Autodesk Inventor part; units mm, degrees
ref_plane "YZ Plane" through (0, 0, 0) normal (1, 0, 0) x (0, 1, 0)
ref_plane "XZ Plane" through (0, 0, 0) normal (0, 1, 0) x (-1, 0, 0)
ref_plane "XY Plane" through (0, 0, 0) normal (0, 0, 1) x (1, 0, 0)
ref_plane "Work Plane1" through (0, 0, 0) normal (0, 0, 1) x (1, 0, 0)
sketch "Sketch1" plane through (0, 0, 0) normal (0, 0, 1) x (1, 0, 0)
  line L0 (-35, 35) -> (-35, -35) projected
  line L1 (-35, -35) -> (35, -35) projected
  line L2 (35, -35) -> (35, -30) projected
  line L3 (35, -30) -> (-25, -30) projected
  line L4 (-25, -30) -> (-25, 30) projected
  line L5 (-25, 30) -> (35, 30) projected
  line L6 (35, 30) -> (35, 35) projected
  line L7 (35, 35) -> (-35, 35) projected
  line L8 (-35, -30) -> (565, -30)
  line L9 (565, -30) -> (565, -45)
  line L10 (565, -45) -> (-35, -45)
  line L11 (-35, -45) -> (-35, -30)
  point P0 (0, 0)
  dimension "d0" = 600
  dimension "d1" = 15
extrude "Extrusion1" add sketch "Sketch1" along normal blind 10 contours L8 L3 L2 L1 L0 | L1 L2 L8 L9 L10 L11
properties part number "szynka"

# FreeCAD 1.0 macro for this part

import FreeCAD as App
import Part
import Sketcher

V = App.Vector
Q = App.Units.Quantity

doc = App.newDocument("Part")
params = doc.addObject("Spreadsheet::Sheet", "Params")
for row, (alias, value) in enumerate([
    ("sketch1_width", "600 mm"),
    ("sketch1_height", "15 mm"),
    ("pad1_length", "10 mm"),
], start=1):
    params.set(f"A{row}", alias)
    params.set(f"B{row}", "=" + value)
    params.setAlias(f"B{row}", alias)

body = doc.addObject("PartDesign::Body", "Body")

sketch1 = body.newObject("Sketcher::SketchObject", "Sketch")
sketch1.AttachmentSupport = (doc.getObject("XY_Plane"), [""])
sketch1.MapMode = "FlatFace"
sketch1.addGeometry(Part.LineSegment(V(-35, -30, 0), V(-35, -45, 0)), False)
sketch1.addGeometry(Part.LineSegment(V(-35, -45, 0), V(565, -45, 0)), False)
sketch1.addGeometry(Part.LineSegment(V(565, -45, 0), V(565, -30, 0)), False)
sketch1.addGeometry(Part.LineSegment(V(565, -30, 0), V(-35, -30, 0)), False)
sketch1.addConstraint(Sketcher.Constraint("Coincident", 0, 2, 1, 1))
sketch1.addConstraint(Sketcher.Constraint("Coincident", 1, 2, 2, 1))
sketch1.addConstraint(Sketcher.Constraint("Coincident", 2, 2, 3, 1))
sketch1.addConstraint(Sketcher.Constraint("Coincident", 3, 2, 0, 1))
sketch1.addConstraint(Sketcher.Constraint("Vertical", 0))
sketch1.addConstraint(Sketcher.Constraint("Horizontal", 1))
sketch1.addConstraint(Sketcher.Constraint("Vertical", 2))
sketch1.addConstraint(Sketcher.Constraint("Horizontal", 3))
sketch1.addConstraint(Sketcher.Constraint("DistanceX", 1, 1, 1, 2, Q("600 mm")))
sketch1.addConstraint(Sketcher.Constraint("DistanceY", 0, 2, 0, 1, Q("15 mm")))
sketch1.addConstraint(Sketcher.Constraint("DistanceX", 0, 2, -1, 1, Q("35 mm")))
sketch1.addConstraint(Sketcher.Constraint("DistanceY", 0, 2, -1, 1, Q("45 mm")))
sketch1.setExpression("Constraints[8]", "Params.sketch1_width")
sketch1.setExpression("Constraints[9]", "Params.sketch1_height")
pad1 = body.newObject("PartDesign::Pad", "Pad")
pad1.Profile = sketch1
pad1.setExpression("Length", "Params.pad1_length")

doc.recompute()
